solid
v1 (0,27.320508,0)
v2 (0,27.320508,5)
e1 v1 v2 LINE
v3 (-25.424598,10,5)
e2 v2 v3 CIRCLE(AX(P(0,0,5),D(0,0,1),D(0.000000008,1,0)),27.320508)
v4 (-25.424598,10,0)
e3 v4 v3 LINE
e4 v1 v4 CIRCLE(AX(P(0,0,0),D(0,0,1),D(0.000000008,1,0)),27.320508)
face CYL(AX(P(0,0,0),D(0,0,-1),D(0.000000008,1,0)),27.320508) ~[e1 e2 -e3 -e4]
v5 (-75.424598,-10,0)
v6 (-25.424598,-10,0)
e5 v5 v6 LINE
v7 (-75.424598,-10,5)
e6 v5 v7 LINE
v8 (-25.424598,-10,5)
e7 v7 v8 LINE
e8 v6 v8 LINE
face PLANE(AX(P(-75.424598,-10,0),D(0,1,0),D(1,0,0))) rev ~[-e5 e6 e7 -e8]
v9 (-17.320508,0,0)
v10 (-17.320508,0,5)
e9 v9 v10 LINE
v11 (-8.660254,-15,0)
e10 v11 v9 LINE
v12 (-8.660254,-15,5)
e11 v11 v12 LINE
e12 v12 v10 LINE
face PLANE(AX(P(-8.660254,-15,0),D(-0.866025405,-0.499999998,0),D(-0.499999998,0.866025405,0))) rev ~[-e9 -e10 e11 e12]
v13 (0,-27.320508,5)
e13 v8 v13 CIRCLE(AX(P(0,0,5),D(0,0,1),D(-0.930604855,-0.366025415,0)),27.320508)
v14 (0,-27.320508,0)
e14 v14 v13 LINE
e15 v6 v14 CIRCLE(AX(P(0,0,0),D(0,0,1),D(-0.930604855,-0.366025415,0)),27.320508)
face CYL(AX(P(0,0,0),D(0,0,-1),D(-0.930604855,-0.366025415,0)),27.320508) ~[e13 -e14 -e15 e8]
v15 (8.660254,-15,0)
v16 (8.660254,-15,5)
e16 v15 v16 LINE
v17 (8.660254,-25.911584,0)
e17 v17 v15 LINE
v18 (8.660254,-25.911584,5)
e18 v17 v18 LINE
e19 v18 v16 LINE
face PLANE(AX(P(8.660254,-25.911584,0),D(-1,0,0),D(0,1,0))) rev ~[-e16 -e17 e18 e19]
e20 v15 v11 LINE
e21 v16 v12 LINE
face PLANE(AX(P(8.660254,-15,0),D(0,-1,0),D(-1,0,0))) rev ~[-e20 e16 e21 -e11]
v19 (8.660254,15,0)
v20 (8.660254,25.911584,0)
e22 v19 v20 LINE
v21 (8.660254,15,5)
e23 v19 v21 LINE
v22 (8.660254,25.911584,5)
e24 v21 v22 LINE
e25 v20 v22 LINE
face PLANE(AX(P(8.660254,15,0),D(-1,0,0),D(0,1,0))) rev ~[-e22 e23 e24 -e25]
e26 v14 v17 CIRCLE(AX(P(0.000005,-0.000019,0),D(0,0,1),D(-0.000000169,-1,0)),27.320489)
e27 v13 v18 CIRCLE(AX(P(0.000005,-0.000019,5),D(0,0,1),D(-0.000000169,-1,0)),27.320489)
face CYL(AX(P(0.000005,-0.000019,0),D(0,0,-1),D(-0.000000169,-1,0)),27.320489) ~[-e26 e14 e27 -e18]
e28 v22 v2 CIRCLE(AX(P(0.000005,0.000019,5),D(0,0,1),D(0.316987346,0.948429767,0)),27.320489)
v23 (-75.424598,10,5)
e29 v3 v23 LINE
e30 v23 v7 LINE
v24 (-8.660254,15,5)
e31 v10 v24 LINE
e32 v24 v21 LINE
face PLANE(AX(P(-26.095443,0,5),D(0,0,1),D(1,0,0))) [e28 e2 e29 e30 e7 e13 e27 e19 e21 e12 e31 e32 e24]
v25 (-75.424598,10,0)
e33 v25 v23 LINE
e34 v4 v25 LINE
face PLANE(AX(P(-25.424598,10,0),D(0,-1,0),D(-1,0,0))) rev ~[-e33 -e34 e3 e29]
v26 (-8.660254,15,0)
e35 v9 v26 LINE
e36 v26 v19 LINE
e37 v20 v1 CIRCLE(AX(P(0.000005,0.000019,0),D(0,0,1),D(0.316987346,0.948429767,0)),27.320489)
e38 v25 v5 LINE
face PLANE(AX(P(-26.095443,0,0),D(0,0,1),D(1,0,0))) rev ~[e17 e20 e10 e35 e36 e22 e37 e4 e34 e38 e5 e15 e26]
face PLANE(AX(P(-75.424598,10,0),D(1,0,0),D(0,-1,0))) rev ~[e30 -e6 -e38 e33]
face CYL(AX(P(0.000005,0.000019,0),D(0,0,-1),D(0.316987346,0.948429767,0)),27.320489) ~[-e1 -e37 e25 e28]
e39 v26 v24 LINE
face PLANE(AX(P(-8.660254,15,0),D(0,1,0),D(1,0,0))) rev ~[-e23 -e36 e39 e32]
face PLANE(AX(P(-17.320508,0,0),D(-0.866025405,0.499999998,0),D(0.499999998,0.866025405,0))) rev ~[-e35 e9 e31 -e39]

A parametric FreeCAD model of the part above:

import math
import FreeCAD as App
import Part
import Sketcher

V = App.Vector
Q = App.Units.Quantity

doc = App.newDocument("Part")
body = doc.addObject("PartDesign::Body", "Body")

sketch1 = body.newObject("Sketcher::SketchObject", "Sketch")
sketch1.AttachmentSupport = (doc.getObject("XY_Plane"), [""])
sketch1.MapMode = "FlatFace"
sketch1.addGeometry(Part.LineSegment(V(9, -26, 0), V(9, -15, 0)), False)
sketch1.addGeometry(Part.LineSegment(V(9, -15, 0), V(-9, -15, 0)), False)
sketch1.addGeometry(Part.LineSegment(V(-9, -15, 0), V(-17, 0, 0)), False)
sketch1.addGeometry(Part.LineSegment(V(-17, 0, 0), V(-9, 15, 0)), False)
sketch1.addGeometry(Part.LineSegment(V(-9, 15, 0), V(9, 15, 0)), False)
sketch1.addGeometry(Part.LineSegment(V(9, 15, 0), V(9, 26, 0)), False)
sketch1.addGeometry(Part.ArcOfCircle(Part.Circle(V(0, 0, 0), V(0, 0, 1), 27), math.radians(71.52), math.radians(90)), False)
sketch1.addGeometry(Part.ArcOfCircle(Part.Circle(V(0, 0, 0), V(0, 0, 1), 27), math.radians(90), math.radians(159)), False)
sketch1.addGeometry(Part.LineSegment(V(-25, 10, 0), V(-75, 10, 0)), False)
sketch1.addGeometry(Part.LineSegment(V(-75, 10, 0), V(-75, -10, 0)), False)
sketch1.addGeometry(Part.LineSegment(V(-75, -10, 0), V(-25, -10, 0)), False)
sketch1.addGeometry(Part.ArcOfCircle(Part.Circle(V(0, 0, 0), V(0, 0, 1), 27), math.radians(-159), math.radians(-90)), False)
sketch1.addGeometry(Part.ArcOfCircle(Part.Circle(V(0, 0, 0), V(0, 0, 1), 27), math.radians(-90), math.radians(-71.52)), False)
sketch1.addConstraint(Sketcher.Constraint("Coincident", 0, 2, 1, 1))
sketch1.addConstraint(Sketcher.Constraint("Coincident", 1, 2, 2, 1))
sketch1.addConstraint(Sketcher.Constraint("Coincident", 2, 2, 3, 1))
sketch1.addConstraint(Sketcher.Constraint("Coincident", 3, 2, 4, 1))
sketch1.addConstraint(Sketcher.Constraint("Coincident", 4, 2, 5, 1))
sketch1.addConstraint(Sketcher.Constraint("Coincident", 5, 2, 6, 1))
sketch1.addConstraint(Sketcher.Constraint("Tangent", 6, 2, 7, 1))
sketch1.addConstraint(Sketcher.Constraint("Coincident", 7, 2, 8, 1))
sketch1.addConstraint(Sketcher.Constraint("Coincident", 8, 2, 9, 1))
sketch1.addConstraint(Sketcher.Constraint("Coincident", 9, 2, 10, 1))
sketch1.addConstraint(Sketcher.Constraint("Coincident", 10, 2, 11, 1))
sketch1.addConstraint(Sketcher.Constraint("Tangent", 11, 2, 12, 1))
sketch1.addConstraint(Sketcher.Constraint("Coincident", 12, 2, 0, 1))
sketch1.addConstraint(Sketcher.Constraint("Vertical", 0))
sketch1.addConstraint(Sketcher.Constraint("Horizontal", 1))
sketch1.addConstraint(Sketcher.Constraint("Horizontal", 4))
sketch1.addConstraint(Sketcher.Constraint("Vertical", 5))
sketch1.addConstraint(Sketcher.Constraint("Horizontal", 8))
sketch1.addConstraint(Sketcher.Constraint("Vertical", 9))
sketch1.addConstraint(Sketcher.Constraint("Horizontal", 10))
sketch1.addConstraint(Sketcher.Constraint("Coincident", 7, 3, -1, 1))
sketch1.addConstraint(Sketcher.Constraint("Coincident", 11, 3, -1, 1))
sketch1.addConstraint(Sketcher.Constraint("Equal", 7, 11))
sketch1.addConstraint(Sketcher.Constraint("Equal", 6, 12))
sketch1.addConstraint(Sketcher.Constraint("Symmetric", 0, 2, 3, 2, -1, 1))
sketch1.addConstraint(Sketcher.Constraint("PointOnObject", 2, 2, -1))
sketch1.addConstraint(Sketcher.Constraint("PointOnObject", 6, 2, -2))
sketch1.addConstraint(Sketcher.Constraint("PointOnObject", 11, 2, -2))
sketch1.addConstraint(Sketcher.Constraint("Vertical", 1, 2, 3, 2))
sketch1.addConstraint(Sketcher.Constraint("Vertical", 0, 2, 4, 2))
sketch1.addConstraint(Sketcher.Constraint("Vertical", 7, 2, 10, 2))
sketch1.addConstraint(Sketcher.Constraint("DistanceX", 8, 2, 8, 1, Q("50 mm")))
sketch1.addConstraint(Sketcher.Constraint("DistanceY", 9, 2, 9, 1, Q("20 mm")))
sketch1.addConstraint(Sketcher.Constraint("Angle", 2, Q("120 deg")))
sketch1.addConstraint(Sketcher.Constraint("DistanceY", 0, 2, -1, 1, Q("15 mm")))
sketch1.addConstraint(Sketcher.Constraint("Radius", 6, Q("27.320489 mm")))
sketch1.addConstraint(Sketcher.Constraint("Radius", 7, Q("27.320508 mm")))
sketch1.addConstraint(Sketcher.Constraint("DistanceX", 1, 2, 1, 1, Q("17.320508 mm")))
pad1 = body.newObject("PartDesign::Pad", "Pad")
pad1.Profile = sketch1
pad1.Length = 5

doc.recompute()
